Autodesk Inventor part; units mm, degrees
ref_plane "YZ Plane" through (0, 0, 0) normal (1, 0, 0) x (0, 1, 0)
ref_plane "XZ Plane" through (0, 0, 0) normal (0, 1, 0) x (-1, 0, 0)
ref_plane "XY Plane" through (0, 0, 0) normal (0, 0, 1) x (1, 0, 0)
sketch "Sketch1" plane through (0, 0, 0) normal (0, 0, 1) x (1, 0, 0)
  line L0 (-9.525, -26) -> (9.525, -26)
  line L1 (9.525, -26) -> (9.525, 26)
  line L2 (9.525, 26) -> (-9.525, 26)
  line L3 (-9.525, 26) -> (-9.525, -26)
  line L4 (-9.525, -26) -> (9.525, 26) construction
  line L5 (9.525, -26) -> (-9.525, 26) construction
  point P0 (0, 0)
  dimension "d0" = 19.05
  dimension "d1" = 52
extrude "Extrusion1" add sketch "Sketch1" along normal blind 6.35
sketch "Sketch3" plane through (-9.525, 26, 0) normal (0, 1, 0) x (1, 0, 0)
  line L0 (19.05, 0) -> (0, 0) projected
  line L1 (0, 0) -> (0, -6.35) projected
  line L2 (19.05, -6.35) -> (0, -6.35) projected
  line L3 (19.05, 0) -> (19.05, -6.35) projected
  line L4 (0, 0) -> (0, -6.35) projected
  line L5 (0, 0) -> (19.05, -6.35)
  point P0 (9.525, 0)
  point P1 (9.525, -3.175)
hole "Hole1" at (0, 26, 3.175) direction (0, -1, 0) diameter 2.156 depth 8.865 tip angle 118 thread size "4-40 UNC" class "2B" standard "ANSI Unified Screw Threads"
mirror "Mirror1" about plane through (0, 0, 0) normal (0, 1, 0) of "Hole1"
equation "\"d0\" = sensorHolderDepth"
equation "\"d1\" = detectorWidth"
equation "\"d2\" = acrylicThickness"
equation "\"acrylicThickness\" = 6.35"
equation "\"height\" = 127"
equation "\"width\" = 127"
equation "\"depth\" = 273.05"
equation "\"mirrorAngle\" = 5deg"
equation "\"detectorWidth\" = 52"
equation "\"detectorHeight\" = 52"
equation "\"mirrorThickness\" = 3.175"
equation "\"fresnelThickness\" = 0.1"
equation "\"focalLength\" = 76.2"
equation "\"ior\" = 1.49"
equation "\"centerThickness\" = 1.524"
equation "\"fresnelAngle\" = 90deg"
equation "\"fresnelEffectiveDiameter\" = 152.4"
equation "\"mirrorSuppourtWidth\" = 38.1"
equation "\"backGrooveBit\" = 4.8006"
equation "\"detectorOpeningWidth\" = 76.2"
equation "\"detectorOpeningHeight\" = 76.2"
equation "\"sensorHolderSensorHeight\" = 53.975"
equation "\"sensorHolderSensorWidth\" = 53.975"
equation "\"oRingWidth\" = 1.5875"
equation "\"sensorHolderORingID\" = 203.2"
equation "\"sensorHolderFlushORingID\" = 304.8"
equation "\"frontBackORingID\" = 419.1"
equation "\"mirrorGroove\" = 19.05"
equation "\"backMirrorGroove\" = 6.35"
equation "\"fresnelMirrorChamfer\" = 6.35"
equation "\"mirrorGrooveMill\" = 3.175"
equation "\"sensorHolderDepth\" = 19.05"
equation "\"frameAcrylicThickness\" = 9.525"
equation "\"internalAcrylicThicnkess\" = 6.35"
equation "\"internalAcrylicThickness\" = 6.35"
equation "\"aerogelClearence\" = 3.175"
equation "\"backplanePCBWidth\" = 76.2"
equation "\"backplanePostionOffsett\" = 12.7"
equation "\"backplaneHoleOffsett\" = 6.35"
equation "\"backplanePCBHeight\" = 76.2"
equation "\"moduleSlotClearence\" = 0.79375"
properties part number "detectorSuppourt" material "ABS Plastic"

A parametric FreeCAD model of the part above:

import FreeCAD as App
import Part
import Sketcher

V = App.Vector
Q = App.Units.Quantity


def add_polygon(sketch, points):
    """Adds a closed chain of lines whose ends are joined by coincident constraints."""
    first, n = sketch.GeometryCount, len(points)
    for a, b in zip(points, points[1:] + points[:1]):
        sketch.addGeometry(Part.LineSegment(App.Vector(*a, 0), App.Vector(*b, 0)), False)
    for i in range(n):
        sketch.addConstraint(Sketcher.Constraint("Coincident", first + i, 2, first + (i + 1) % n, 1))

doc = App.newDocument("Part")
body = doc.addObject("PartDesign::Body", "Body")

sketch1 = doc.addObject("Sketcher::SketchObject", "Sketch")
body.addObject(sketch1)
sketch1.AttachmentSupport = (doc.XY_Plane, [""])
sketch1.MapMode = "FlatFace"
add_polygon(sketch1, [(-9.525, 26), (-9.525, -26), (9.525, -26), (9.525, 26)])
sketch1.addConstraint(Sketcher.Constraint("Vertical", 0))
sketch1.addConstraint(Sketcher.Constraint("Horizontal", 1))
sketch1.addConstraint(Sketcher.Constraint("Vertical", 2))
sketch1.addConstraint(Sketcher.Constraint("Horizontal", 3))
sketch1.addConstraint(Sketcher.Constraint("Symmetric", 0, 2, 2, 2, -1, 1))
sketch1.addConstraint(Sketcher.Constraint("DistanceX", 1, 1, 1, 2, Q("0.75 in")))
sketch1.addConstraint(Sketcher.Constraint("DistanceY", 0, 2, 0, 1, Q("52 mm")))
pad1 = doc.addObject("PartDesign::Pad", "Pad")
body.addObject(pad1)
pad1.Profile = sketch1
pad1.Length = Q("0.25 in")

sketch2 = doc.addObject("Sketcher::SketchObject", "Sketch001")
body.addObject(sketch2)
sketch2.AttachmentSupport = (doc.XZ_Plane, [""])
sketch2.MapMode = "FlatFace"
sketch2.AttachmentOffset = App.Placement(V(0, 0, -26), App.Rotation())
sketch2.addGeometry(Part.Circle(V(0, 3.175, 0), V(0, 0, 1), 1.078), False)
sketch2.addConstraint(Sketcher.Constraint("PointOnObject", 0, 3, -2))
sketch2.addConstraint(Sketcher.Constraint("Diameter", 0, Q("2.156 mm")))
sketch2.addConstraint(Sketcher.Constraint("DistanceY", -1, 1, 0, 3, Q("0.125 in")))
doc.recompute()
hole = doc.addObject("PartDesign::Hole", "Hole")
body.addObject(hole)
hole.Profile = sketch2
hole.ThreadType = "None"
hole.Diameter = 2.156
hole.DepthType = "Dimension"
hole.Depth = 8.865
hole.DrillPoint = "Angled"
hole.DrillPointAngle = 118
hole.Reversed = True
doc.recompute()

mirrored = doc.addObject("PartDesign::Mirrored", "Mirrored")
body.addObject(mirrored)
mirrored.Originals = [hole]
mirrored.MirrorPlane = (doc.XZ_Plane, [""])
body.Tip = mirrored

doc.recompute()
